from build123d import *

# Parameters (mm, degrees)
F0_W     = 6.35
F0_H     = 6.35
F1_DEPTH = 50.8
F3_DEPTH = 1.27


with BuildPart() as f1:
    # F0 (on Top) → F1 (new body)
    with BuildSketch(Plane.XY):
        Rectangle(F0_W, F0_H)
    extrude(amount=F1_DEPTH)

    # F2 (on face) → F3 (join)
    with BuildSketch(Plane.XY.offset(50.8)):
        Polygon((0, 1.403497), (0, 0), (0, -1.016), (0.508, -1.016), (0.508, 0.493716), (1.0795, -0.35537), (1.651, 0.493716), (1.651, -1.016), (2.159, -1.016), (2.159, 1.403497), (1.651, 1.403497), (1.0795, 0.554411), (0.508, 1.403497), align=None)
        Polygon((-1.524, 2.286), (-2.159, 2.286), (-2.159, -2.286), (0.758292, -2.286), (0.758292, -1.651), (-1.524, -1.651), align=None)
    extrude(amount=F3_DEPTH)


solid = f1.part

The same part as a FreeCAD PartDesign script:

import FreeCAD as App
import Part
import Sketcher

V = App.Vector
Q = App.Units.Quantity


def add_polygon(sketch, points):
    """Adds a closed chain of lines whose ends are joined by coincident constraints."""
    first, n = sketch.GeometryCount, len(points)
    for a, b in zip(points, points[1:] + points[:1]):
        sketch.addGeometry(Part.LineSegment(App.Vector(*a, 0), App.Vector(*b, 0)), False)
    for i in range(n):
        sketch.addConstraint(Sketcher.Constraint("Coincident", first + i, 2, first + (i + 1) % n, 1))

doc = App.newDocument("Part")
body = doc.addObject("PartDesign::Body", "Body")

# Sketch on XY plane
sketch1 = doc.addObject("Sketcher::SketchObject", "Sketch")
body.addObject(sketch1)
sketch1.AttachmentSupport = (doc.XY_Plane, [""])
sketch1.MapMode = "FlatFace"
add_polygon(sketch1, [(-3.175, 3.175), (-3.175, -3.175), (3.175, -3.175), (3.175, 3.175)])  # lines 0-3
sketch1.addConstraint([
    Sketcher.Constraint("Vertical", 0),
    Sketcher.Constraint("Horizontal", 1),
    Sketcher.Constraint("Vertical", 2),
    Sketcher.Constraint("Horizontal", 3),
    Sketcher.Constraint("Symmetric", 0, 2, 2, 2, -1, 1),
    Sketcher.Constraint("Equal", 3, 0),
    Sketcher.Constraint("DistanceX", 1, 1, 1, 2, Q("0.25 in")),
])
pad1 = doc.addObject("PartDesign::Pad", "Pad")
body.addObject(pad1)
pad1.Profile = sketch1
pad1.Length = Q("2 in")

# Sketch on XY plane
sketch2 = doc.addObject("Sketcher::SketchObject", "Sketch001")
body.addObject(sketch2)
sketch2.AttachmentSupport = (doc.XY_Plane, [""])
sketch2.MapMode = "FlatFace"
sketch2.AttachmentOffset = App.Placement(V(0, 0, 2 * 25.4), App.Rotation())
add_polygon(sketch2, [(0, 1.403497), (0, -1.016), (0.508, -1.016), (0.508, 0.493716), (1.0795, -0.35537), (1.651, 0.493716), (1.651, -1.016), (2.159, -1.016), (2.159, 1.403497), (1.651, 1.403497), (1.0795, 0.554411), (0.508, 1.403497)])  # lines 0-11
add_polygon(sketch2, [(-1.524, 2.286), (-2.159, 2.286), (-2.159, -2.286), (0.758292, -2.286), (0.758292, -1.651), (-1.524, -1.651)])  # lines 12-17
sketch2.addConstraint([
    Sketcher.Constraint("Vertical", 0),
    Sketcher.Constraint("Horizontal", 1),
    Sketcher.Constraint("Vertical", 2),
    Sketcher.Constraint("Vertical", 5),
    Sketcher.Constraint("Horizontal", 6),
    Sketcher.Constraint("Vertical", 7),
    Sketcher.Constraint("Horizontal", 8),
    Sketcher.Constraint("Horizontal", 11),
    Sketcher.Constraint("Horizontal", 12),
    Sketcher.Constraint("Vertical", 13),
    Sketcher.Constraint("Horizontal", 14),
    Sketcher.Constraint("Vertical", 15),
    Sketcher.Constraint("Horizontal", 16),
    Sketcher.Constraint("Vertical", 17),
    Sketcher.Constraint("PointOnObject", 0, 2, -2),
    Sketcher.Constraint("Parallel", 4, 9),
    Sketcher.Constraint("Parallel", 3, 10),
    Sketcher.Constraint("Horizontal", 2, 2, 4, 2),
    Sketcher.Constraint("Horizontal", 1, 2, 5, 2),
    Sketcher.Constraint("Horizontal", 8, 2, 10, 2),
    Sketcher.Constraint("Vertical", 5, 2, 8, 2),
    Sketcher.Constraint("Vertical", 3, 2, 9, 2),
    Sketcher.Constraint("Equal", 1, 6),
    Sketcher.Constraint("Equal", 12, 15),
    Sketcher.Constraint("Equal", 3, 4),
    Sketcher.Constraint("DistanceX", 1, 1, 1, 2, Q("0.02 in")),
    Sketcher.Constraint("DistanceY", 13, 2, 13, 1, Q("0.18 in")),
    Sketcher.Constraint("DistanceX", 12, 2, 12, 1, Q("0.025 in")),
    Sketcher.Constraint("DistanceY", 0, 2, -1, 1, Q("0.04 in")),
    Sketcher.Constraint("DistanceY", -1, 1, 12, 2, Q("0.09 in")),
    Sketcher.Constraint("DistanceX", 16, 2, -1, 1, Q("0.06 in")),
    Sketcher.Constraint("DistanceX", 12, 2, 8, 2, Q("0.15 in")),
    Sketcher.Constraint("DistanceX", 14, 1, 14, 2, Q("2.917292 mm")),
    Sketcher.Constraint("DistanceY", 0, 2, 0, 1, Q("2.419497 mm")),
    Sketcher.Constraint("DistanceY", 2, 1, 2, 2, Q("1.509716 mm")),
    Sketcher.Constraint("DistanceY", 3, 2, -1, 1, Q("0.35537 mm")),
])
pad2 = doc.addObject("PartDesign::Pad", "Pad001")
body.addObject(pad2)
pad2.Profile = sketch2
pad2.Length = Q("0.05 in")

doc.recompute()
